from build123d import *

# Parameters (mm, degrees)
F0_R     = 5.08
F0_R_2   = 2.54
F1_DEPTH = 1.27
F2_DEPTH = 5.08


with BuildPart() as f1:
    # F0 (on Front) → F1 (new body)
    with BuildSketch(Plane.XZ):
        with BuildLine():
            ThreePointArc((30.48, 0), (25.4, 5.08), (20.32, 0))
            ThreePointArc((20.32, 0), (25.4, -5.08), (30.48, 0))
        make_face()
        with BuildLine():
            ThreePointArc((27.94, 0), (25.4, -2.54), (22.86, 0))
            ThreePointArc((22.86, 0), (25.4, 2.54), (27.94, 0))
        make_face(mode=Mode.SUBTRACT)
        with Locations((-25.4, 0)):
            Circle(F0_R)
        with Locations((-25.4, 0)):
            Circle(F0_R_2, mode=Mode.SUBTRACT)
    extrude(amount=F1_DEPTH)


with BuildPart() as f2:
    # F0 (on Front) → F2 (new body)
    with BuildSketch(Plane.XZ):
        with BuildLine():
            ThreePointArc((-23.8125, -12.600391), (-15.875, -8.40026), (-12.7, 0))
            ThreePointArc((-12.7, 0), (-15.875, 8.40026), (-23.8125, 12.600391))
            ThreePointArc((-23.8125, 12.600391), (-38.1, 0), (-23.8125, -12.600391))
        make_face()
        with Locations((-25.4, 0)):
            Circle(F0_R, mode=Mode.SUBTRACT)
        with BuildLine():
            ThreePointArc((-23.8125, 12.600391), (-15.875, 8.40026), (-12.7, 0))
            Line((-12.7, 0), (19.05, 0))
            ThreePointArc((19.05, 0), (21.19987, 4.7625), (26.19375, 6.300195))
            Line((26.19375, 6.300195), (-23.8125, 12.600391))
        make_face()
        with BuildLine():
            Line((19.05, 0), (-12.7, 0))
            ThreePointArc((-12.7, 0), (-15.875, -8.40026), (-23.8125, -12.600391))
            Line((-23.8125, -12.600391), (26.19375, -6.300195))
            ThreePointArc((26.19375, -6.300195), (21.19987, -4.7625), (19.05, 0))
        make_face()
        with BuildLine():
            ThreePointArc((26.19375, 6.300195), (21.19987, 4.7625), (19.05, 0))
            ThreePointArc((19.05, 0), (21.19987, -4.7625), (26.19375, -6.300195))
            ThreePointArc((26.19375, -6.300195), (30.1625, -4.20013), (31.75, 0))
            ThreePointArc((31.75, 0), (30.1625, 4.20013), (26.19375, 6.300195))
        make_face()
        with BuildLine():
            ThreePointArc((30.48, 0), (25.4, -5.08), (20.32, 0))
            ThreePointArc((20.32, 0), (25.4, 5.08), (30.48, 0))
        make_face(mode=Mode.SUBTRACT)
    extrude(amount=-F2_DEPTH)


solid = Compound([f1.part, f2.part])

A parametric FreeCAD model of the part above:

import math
import FreeCAD as App
import Part
import Sketcher
from FreeCAD import Vector
Q = App.Units.Quantity

doc = App.newDocument("Part")
body = doc.addObject("PartDesign::Body", "Body")
body.AllowCompound = True

sketch1 = body.newObject("Sketcher::SketchObject", "Sketch")
sketch1.AttachmentSupport = (doc.getObject("XZ_Plane"), [""])
sketch1.MapMode = "FlatFace"
sketch1.addGeometry(Part.Circle(Vector(25.4, 0, 0), Vector(0, 0, 1), 5.08), False)
sketch1.addGeometry(Part.Circle(Vector(25.4, 0, 0), Vector(0, 0, 1), 2.54), False)
sketch1.addGeometry(Part.Circle(Vector(-25.4, 0, 0), Vector(0, 0, 1), 5.08), False)
sketch1.addGeometry(Part.Circle(Vector(-25.4, 0, 0), Vector(0, 0, 1), 2.54), False)
sketch1.addConstraint(Sketcher.Constraint("Coincident", 1, 3, 0, 3))
sketch1.addConstraint(Sketcher.Constraint("Coincident", 3, 3, 2, 3))
sketch1.addConstraint(Sketcher.Constraint("Equal", 0, 2))
sketch1.addConstraint(Sketcher.Constraint("Equal", 1, 3))
sketch1.addConstraint(Sketcher.Constraint("Symmetric", 0, 3, 2, 3, -1, 1))
sketch1.addConstraint(Sketcher.Constraint("PointOnObject", 0, 3, -1))
sketch1.addConstraint(Sketcher.Constraint("Diameter", 0, Q("0.4 in")))
sketch1.addConstraint(Sketcher.Constraint("Diameter", 1, Q("0.2 in")))
sketch1.addConstraint(Sketcher.Constraint("DistanceX", -1, 1, 0, 3, Q("1 in")))
pad1 = body.newObject("PartDesign::Pad", "Pad")
pad1.Profile = sketch1
pad1.Length = Q("0.05 in")
body2 = doc.addObject("PartDesign::Body", "Body001")

sketch2 = body2.newObject("Sketcher::SketchObject", "Sketch001")
sketch2.AttachmentSupport = (doc.getObject("XZ_Plane001"), [""])
sketch2.MapMode = "FlatFace"
sketch2.addGeometry(Part.LineSegment(Vector(26.19375, 6.300195, 0), Vector(-23.8125, 12.600391, 0)), False)
sketch2.addGeometry(Part.ArcOfCircle(Part.Circle(Vector(-25.4, 0, 0), Vector(0, 0, 1), 12.7), math.radians(82.819246), math.radians(277.180754)), False)
sketch2.addGeometry(Part.LineSegment(Vector(-23.8125, -12.600391, 0), Vector(26.19375, -6.300195, 0)), False)
sketch2.addGeometry(Part.ArcOfCircle(Part.Circle(Vector(25.4, 0, 0), Vector(0, 0, 1), 6.35), math.radians(-82.819246), math.radians(-0.000001)), False)
sketch2.addGeometry(Part.ArcOfCircle(Part.Circle(Vector(25.4, 0, 0), Vector(0, 0, 1), 6.35), math.radians(0.000001), math.radians(82.819246)), False)
sketch2.addGeometry(Part.Circle(Vector(-25.4, 0, 0), Vector(0, 0, 1), 5.08), False)
sketch2.addGeometry(Part.Circle(Vector(25.4, 0, 0), Vector(0, 0, 1), 5.08), False)
sketch2.addConstraint(Sketcher.Constraint("Tangent", 0, 2, 1, 1))
sketch2.addConstraint(Sketcher.Constraint("Tangent", 1, 2, 2, 1))
sketch2.addConstraint(Sketcher.Constraint("Tangent", 2, 2, 3, 1))
sketch2.addConstraint(Sketcher.Constraint("Tangent", 3, 2, 4, 1))
sketch2.addConstraint(Sketcher.Constraint("Tangent", 4, 2, 0, 1))
sketch2.addConstraint(Sketcher.Constraint("Coincident", 5, 3, 1, 3))
sketch2.addConstraint(Sketcher.Constraint("Coincident", 6, 3, 3, 3))
sketch2.addConstraint(Sketcher.Constraint("Equal", 3, 4))
sketch2.addConstraint(Sketcher.Constraint("Equal", 5, 6))
sketch2.addConstraint(Sketcher.Constraint("Symmetric", 1, 3, 3, 3, -1, 1))
sketch2.addConstraint(Sketcher.Constraint("PointOnObject", 1, 3, -1))
sketch2.addConstraint(Sketcher.Constraint("PointOnObject", 3, 2, -1))
sketch2.addConstraint(Sketcher.Constraint("Diameter", 5, Q("0.4 in")))
sketch2.addConstraint(Sketcher.Constraint("Radius", 1, Q("0.5 in")))
sketch2.addConstraint(Sketcher.Constraint("Radius", 3, Q("0.25 in")))
sketch2.addConstraint(Sketcher.Constraint("DistanceX", 1, 3, -1, 1, Q("1 in")))
pad2 = body2.newObject("PartDesign::Pad", "Pad001")
pad2.Profile = sketch2
pad2.Length = Q("0.2 in")
pad2.Reversed = True

doc.recompute()
